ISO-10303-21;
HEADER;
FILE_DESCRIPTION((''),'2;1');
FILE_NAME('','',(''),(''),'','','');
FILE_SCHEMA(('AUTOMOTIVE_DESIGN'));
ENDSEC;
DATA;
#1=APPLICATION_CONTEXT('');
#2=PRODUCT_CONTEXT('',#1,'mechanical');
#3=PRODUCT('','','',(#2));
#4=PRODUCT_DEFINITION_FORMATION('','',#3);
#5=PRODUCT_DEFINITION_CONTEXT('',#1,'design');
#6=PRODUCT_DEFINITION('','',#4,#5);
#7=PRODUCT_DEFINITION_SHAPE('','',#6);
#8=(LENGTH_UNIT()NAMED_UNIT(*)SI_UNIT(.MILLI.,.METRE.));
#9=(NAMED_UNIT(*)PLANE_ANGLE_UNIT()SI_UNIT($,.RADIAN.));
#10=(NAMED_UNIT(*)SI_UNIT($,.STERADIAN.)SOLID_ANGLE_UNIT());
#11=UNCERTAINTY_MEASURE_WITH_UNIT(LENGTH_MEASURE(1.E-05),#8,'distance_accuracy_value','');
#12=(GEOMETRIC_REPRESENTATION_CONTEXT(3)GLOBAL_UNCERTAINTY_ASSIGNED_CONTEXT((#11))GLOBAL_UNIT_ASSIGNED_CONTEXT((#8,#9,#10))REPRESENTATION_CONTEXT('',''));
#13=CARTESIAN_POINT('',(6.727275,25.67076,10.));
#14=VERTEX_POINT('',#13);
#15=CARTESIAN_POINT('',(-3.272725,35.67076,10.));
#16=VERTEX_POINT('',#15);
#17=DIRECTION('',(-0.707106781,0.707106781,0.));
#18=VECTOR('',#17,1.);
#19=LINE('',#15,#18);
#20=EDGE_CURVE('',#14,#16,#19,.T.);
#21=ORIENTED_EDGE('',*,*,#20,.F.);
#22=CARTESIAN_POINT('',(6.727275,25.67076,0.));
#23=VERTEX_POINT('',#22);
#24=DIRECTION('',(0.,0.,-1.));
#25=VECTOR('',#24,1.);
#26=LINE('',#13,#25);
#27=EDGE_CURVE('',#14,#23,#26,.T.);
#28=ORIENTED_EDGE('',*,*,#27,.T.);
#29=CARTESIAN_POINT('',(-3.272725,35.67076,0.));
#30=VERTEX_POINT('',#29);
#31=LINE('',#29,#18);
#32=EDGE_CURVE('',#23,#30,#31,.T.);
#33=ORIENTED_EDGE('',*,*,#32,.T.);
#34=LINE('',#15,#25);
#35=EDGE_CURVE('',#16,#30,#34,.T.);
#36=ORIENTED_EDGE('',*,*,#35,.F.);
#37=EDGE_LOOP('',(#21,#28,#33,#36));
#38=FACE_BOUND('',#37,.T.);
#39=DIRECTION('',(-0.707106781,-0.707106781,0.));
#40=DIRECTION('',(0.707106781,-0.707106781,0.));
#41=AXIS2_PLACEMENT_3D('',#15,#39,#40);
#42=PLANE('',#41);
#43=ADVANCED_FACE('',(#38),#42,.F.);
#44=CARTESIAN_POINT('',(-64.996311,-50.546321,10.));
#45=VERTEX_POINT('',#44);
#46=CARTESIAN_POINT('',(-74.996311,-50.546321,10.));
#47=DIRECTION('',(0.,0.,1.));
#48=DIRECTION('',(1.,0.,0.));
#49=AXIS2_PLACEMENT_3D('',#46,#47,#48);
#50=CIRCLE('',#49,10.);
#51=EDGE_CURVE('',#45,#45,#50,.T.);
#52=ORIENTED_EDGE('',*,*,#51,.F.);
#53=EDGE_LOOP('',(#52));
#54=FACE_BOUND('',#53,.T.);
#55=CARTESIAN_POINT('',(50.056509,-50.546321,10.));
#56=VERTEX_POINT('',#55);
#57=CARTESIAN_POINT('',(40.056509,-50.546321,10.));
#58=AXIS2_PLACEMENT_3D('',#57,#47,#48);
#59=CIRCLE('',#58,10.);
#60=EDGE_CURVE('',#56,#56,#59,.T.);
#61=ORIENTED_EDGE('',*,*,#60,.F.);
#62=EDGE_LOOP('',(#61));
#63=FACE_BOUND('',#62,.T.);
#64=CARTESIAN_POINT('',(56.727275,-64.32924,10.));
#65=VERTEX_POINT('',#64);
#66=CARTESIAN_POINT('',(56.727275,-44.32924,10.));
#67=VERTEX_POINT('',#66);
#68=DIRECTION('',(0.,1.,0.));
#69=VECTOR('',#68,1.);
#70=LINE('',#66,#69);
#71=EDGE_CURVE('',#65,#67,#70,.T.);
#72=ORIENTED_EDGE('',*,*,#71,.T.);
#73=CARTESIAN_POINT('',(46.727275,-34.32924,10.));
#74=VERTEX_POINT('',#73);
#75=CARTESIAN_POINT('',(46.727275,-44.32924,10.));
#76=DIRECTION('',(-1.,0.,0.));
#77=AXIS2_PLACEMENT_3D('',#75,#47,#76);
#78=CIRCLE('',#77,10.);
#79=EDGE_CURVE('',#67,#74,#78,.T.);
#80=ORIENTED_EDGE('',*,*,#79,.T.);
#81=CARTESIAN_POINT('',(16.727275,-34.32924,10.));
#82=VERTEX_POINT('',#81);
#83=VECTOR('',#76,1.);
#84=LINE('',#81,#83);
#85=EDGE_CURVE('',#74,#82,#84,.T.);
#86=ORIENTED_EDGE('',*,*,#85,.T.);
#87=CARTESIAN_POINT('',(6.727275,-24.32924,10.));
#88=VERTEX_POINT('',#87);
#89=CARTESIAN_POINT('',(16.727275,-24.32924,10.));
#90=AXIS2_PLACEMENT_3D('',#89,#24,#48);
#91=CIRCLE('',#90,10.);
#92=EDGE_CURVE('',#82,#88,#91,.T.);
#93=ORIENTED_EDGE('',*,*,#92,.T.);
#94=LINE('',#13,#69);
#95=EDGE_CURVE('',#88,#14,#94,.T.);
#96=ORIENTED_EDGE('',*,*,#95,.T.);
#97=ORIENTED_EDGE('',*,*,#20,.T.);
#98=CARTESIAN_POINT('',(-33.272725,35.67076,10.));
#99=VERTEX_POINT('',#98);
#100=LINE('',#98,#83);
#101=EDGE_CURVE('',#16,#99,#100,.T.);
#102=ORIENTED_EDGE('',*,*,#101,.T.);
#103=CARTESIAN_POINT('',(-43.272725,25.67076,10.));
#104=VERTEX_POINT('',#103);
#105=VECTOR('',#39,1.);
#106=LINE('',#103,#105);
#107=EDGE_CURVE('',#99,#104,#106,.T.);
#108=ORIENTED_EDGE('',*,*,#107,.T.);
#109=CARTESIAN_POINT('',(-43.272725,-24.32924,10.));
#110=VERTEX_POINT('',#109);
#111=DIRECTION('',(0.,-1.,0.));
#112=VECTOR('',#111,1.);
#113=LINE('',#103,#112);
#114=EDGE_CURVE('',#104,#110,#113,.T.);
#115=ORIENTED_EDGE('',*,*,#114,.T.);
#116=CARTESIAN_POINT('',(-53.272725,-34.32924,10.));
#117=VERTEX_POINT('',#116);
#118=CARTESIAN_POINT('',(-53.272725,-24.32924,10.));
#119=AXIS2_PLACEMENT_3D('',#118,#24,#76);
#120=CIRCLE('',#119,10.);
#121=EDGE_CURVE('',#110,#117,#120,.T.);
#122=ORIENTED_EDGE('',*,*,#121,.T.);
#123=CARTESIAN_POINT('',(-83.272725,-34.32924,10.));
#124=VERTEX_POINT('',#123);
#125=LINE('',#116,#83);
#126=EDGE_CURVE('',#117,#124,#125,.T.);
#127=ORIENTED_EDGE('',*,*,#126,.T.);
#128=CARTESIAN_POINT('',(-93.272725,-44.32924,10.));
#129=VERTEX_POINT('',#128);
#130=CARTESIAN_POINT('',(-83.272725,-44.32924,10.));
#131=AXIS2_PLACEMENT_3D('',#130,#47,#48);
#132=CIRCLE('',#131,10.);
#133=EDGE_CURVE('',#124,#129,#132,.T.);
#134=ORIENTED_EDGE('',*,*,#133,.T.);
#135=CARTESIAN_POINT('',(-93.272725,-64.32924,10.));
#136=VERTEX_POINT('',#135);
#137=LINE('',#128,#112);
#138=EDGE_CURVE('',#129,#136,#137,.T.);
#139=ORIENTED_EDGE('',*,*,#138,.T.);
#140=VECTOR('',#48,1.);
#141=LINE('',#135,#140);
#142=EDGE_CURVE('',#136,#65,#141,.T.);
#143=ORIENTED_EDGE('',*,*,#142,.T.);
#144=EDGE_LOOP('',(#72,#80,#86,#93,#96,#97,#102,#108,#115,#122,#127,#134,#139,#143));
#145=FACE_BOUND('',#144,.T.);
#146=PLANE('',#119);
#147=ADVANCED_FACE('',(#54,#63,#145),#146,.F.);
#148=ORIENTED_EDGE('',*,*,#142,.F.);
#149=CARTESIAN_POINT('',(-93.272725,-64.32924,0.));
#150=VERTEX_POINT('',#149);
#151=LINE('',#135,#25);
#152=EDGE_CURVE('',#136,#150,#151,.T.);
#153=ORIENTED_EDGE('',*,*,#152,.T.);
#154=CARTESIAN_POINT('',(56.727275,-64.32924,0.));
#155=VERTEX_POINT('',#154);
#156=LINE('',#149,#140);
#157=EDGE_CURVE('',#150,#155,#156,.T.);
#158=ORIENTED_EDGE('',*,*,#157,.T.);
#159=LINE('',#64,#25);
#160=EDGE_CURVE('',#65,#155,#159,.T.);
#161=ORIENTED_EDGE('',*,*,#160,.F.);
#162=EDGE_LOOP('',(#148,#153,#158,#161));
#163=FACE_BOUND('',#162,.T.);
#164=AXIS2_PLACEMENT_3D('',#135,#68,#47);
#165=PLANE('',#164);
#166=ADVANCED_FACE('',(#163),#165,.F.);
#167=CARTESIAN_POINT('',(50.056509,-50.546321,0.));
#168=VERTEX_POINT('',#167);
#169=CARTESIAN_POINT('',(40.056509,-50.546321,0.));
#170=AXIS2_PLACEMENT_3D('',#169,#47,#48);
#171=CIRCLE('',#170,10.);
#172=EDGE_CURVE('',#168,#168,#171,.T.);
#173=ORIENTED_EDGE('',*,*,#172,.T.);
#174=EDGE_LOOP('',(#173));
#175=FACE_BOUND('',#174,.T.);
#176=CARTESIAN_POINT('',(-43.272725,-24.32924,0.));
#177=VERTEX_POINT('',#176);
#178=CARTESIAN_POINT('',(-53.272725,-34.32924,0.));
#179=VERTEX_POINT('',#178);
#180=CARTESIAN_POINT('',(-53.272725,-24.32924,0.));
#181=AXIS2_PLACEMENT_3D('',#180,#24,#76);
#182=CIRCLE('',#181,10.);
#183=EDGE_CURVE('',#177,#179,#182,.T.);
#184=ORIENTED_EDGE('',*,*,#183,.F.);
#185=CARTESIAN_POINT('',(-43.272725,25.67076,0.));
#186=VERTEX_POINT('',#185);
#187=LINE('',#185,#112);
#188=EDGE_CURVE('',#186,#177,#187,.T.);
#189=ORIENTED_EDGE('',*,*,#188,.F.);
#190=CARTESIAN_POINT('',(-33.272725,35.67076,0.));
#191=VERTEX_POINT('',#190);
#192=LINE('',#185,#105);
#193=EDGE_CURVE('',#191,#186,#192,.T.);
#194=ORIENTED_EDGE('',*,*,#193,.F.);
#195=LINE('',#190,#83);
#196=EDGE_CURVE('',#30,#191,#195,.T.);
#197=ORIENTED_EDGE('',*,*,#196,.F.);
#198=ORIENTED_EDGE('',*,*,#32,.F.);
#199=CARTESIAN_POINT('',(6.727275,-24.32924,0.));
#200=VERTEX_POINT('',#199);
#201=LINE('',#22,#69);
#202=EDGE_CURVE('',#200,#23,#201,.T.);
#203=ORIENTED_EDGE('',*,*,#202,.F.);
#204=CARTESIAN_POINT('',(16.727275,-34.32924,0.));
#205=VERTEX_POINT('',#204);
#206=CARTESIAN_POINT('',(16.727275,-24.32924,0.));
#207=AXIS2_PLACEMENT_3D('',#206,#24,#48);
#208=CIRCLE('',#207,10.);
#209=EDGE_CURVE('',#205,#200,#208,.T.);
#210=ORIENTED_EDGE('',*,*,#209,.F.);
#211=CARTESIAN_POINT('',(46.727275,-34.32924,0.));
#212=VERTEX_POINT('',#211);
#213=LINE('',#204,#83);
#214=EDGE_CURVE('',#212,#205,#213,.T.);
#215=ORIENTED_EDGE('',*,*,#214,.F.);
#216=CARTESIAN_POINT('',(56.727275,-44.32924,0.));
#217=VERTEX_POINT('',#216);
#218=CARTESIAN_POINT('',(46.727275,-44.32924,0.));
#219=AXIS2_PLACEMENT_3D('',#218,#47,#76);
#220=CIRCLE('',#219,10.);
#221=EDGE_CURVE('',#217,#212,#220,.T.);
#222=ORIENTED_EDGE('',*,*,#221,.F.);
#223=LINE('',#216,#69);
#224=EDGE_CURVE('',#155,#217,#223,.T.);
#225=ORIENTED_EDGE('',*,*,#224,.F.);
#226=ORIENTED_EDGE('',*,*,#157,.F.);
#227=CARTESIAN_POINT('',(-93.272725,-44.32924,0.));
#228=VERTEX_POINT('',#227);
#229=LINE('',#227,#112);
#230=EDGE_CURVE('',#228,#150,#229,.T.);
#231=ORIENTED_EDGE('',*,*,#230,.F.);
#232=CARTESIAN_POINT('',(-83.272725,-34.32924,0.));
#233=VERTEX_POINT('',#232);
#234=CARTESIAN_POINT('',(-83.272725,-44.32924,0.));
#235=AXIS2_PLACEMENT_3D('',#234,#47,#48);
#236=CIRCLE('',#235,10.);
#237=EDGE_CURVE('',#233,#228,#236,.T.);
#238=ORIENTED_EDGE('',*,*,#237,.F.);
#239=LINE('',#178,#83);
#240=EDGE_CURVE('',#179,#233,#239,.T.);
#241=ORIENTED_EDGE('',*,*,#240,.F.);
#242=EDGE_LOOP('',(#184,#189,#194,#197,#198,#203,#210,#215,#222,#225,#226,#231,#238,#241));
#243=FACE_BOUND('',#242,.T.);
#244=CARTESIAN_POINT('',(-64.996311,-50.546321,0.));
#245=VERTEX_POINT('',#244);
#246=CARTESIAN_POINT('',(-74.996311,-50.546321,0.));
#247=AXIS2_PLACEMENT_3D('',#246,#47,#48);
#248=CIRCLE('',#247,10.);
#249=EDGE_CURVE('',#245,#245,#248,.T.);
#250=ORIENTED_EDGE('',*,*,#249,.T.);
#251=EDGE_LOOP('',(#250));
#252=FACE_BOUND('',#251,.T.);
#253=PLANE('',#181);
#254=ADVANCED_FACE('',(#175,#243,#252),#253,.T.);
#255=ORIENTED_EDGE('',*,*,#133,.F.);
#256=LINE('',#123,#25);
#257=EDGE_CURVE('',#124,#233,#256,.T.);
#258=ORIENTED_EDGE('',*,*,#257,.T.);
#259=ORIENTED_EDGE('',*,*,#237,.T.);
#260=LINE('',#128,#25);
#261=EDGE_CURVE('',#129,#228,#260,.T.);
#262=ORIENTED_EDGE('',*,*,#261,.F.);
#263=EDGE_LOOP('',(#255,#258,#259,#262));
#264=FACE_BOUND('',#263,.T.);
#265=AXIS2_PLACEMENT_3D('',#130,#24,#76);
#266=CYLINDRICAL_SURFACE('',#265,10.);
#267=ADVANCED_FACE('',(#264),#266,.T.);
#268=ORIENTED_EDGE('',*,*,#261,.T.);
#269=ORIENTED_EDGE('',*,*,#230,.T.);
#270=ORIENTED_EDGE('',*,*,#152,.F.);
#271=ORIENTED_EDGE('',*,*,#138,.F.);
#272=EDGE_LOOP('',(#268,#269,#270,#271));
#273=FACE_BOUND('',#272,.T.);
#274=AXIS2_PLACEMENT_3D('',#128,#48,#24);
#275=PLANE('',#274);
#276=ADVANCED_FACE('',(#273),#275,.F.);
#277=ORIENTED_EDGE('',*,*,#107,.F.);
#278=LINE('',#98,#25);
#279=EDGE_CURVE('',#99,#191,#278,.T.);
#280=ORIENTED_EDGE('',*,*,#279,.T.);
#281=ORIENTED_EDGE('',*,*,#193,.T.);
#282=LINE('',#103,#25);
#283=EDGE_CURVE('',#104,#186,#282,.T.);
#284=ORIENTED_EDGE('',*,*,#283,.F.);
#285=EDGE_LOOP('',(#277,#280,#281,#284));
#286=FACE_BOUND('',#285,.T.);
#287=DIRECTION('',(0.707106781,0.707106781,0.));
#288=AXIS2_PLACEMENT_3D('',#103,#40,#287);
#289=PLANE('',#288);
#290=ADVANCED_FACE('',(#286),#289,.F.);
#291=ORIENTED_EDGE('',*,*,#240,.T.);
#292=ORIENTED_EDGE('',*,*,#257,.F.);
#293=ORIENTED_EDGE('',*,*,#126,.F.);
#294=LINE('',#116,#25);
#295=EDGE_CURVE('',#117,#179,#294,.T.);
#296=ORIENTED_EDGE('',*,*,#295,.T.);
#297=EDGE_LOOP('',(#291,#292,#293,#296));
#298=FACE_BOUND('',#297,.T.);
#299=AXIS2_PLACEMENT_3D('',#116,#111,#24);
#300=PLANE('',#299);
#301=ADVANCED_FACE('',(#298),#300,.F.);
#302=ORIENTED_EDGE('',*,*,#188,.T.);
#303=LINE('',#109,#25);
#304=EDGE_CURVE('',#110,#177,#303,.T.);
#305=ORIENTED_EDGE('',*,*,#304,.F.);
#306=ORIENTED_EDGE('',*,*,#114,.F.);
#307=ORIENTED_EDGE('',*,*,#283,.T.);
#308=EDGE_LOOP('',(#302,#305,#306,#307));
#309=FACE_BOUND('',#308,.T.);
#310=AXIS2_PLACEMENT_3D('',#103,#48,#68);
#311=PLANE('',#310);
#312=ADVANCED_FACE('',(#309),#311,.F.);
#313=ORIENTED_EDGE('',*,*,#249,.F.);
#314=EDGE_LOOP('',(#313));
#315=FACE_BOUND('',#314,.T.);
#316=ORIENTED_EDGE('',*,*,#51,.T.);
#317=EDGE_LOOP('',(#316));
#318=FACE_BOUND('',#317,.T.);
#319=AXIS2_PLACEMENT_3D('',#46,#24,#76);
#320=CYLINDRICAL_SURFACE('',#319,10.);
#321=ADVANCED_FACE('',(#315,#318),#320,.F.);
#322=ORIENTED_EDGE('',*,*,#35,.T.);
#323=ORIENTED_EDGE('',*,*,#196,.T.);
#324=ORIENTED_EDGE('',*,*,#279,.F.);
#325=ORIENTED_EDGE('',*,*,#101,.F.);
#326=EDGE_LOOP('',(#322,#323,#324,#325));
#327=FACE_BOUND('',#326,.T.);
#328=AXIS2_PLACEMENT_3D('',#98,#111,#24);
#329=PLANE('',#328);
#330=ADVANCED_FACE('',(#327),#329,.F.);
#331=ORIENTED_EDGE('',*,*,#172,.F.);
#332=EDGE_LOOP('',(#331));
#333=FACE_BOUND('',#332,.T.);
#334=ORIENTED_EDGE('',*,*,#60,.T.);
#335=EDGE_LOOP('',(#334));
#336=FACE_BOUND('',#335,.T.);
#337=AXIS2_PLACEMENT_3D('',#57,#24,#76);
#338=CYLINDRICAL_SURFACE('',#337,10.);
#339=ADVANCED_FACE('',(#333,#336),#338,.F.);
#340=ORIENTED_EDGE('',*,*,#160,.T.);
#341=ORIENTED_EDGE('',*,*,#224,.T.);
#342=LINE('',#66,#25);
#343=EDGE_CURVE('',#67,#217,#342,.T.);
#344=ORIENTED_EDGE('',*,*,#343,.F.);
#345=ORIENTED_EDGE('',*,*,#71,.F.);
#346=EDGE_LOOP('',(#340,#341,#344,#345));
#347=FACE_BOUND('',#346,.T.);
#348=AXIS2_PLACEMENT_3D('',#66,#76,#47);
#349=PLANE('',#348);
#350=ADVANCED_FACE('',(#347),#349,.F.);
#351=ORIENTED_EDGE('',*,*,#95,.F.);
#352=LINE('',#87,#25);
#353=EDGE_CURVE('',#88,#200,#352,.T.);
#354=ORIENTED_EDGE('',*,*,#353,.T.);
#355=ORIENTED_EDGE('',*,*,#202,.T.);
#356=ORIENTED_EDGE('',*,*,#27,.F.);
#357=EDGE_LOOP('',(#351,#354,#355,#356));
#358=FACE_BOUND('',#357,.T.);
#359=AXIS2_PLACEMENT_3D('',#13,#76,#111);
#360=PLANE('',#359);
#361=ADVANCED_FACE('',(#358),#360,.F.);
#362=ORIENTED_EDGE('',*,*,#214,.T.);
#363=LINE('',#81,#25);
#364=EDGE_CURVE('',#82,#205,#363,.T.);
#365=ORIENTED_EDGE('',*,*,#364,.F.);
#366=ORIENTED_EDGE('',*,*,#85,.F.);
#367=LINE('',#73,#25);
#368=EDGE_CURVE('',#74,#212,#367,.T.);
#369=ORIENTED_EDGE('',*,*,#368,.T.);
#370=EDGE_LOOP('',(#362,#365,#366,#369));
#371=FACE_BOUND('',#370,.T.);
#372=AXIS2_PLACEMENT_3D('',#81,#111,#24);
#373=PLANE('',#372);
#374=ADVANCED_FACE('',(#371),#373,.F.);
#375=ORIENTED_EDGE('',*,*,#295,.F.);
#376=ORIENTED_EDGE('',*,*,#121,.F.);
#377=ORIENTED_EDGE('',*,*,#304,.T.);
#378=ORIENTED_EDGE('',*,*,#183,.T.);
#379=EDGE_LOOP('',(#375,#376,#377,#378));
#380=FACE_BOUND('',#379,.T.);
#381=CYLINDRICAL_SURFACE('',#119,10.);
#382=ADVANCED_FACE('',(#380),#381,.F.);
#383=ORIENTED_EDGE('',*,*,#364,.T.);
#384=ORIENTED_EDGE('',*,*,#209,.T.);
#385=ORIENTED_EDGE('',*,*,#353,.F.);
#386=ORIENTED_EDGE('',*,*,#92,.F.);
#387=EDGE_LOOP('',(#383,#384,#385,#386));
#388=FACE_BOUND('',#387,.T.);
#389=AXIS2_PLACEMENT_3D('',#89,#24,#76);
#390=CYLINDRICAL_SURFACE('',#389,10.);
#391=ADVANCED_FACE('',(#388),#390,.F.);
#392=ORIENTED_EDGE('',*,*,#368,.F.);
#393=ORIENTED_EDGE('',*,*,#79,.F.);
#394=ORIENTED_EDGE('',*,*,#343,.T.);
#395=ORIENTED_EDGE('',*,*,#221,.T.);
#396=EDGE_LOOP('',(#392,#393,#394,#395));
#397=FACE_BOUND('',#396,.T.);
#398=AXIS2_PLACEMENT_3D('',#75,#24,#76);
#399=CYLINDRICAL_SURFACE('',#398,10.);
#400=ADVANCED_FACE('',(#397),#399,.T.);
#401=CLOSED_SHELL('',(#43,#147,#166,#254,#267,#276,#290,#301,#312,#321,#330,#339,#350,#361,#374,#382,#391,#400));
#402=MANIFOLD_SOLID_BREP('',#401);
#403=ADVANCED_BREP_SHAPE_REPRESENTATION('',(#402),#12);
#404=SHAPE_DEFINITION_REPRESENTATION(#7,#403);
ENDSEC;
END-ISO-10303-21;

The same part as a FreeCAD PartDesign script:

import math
import FreeCAD as App
import Part
import Sketcher

doc = App.newDocument("Part")
body = doc.addObject("PartDesign::Body", "Body")

# Sketch on XY plane
sketch1 = body.newObject("Sketcher::SketchObject", "Sketch")
sketch1.AttachmentSupport = (doc.getObject("XY_Plane"), [""])
sketch1.MapMode = "FlatFace"
sketch1.addGeometry(Part.LineSegment(App.Vector(-3.272725, 35.67076, 0), App.Vector(-33.272725, 35.67076, 0)), False)
sketch1.addGeometry(Part.LineSegment(App.Vector(-33.272725, 35.67076, 0), App.Vector(-43.272725, 25.67076, 0)), False)
sketch1.addGeometry(Part.LineSegment(App.Vector(-43.272725, 25.67076, 0), App.Vector(-43.272725, -24.32924, 0)), False)
sketch1.addGeometry(Part.ArcOfCircle(Part.Circle(App.Vector(-53.272725, -24.32924, 0), App.Vector(0, 0, 1), 10), math.radians(-90), math.radians(0)), False)
sketch1.addGeometry(Part.LineSegment(App.Vector(-53.272725, -34.32924, 0), App.Vector(-83.272725, -34.32924, 0)), False)
sketch1.addGeometry(Part.ArcOfCircle(Part.Circle(App.Vector(-83.272725, -44.32924, 0), App.Vector(0, 0, 1), 10), math.radians(90), math.radians(180)), False)
sketch1.addGeometry(Part.LineSegment(App.Vector(-93.272725, -44.32924, 0), App.Vector(-93.272725, -64.32924, 0)), False)
sketch1.addGeometry(Part.LineSegment(App.Vector(-93.272725, -64.32924, 0), App.Vector(56.727275, -64.32924, 0)), False)
sketch1.addGeometry(Part.LineSegment(App.Vector(56.727275, -64.32924, 0), App.Vector(56.727275, -44.32924, 0)), False)
sketch1.addGeometry(Part.ArcOfCircle(Part.Circle(App.Vector(46.727275, -44.32924, 0), App.Vector(0, 0, 1), 10), math.radians(0), math.radians(90)), False)
sketch1.addGeometry(Part.LineSegment(App.Vector(46.727275, -34.32924, 0), App.Vector(16.727275, -34.32924, 0)), False)
sketch1.addGeometry(Part.ArcOfCircle(Part.Circle(App.Vector(16.727275, -24.32924, 0), App.Vector(0, 0, 1), 10), math.radians(180), math.radians(270)), False)
sketch1.addGeometry(Part.LineSegment(App.Vector(6.727275, -24.32924, 0), App.Vector(6.727275, 25.67076, 0)), False)
sketch1.addGeometry(Part.LineSegment(App.Vector(6.727275, 25.67076, 0), App.Vector(-3.272725, 35.67076, 0)), False)
sketch1.addGeometry(Part.Circle(App.Vector(40.056509, -50.546321, 0), App.Vector(0, 0, 1), 10), False)
sketch1.addGeometry(Part.Circle(App.Vector(-74.996311, -50.546321, 0), App.Vector(0, 0, 1), 10), False)
sketch1.addConstraint(Sketcher.Constraint("Coincident", 0, 2, 1, 1))
sketch1.addConstraint(Sketcher.Constraint("Coincident", 1, 2, 2, 1))
sketch1.addConstraint(Sketcher.Constraint("Tangent", 2, 2, 3, 2))
sketch1.addConstraint(Sketcher.Constraint("Tangent", 3, 1, 4, 1))
sketch1.addConstraint(Sketcher.Constraint("Tangent", 4, 2, 5, 1))
sketch1.addConstraint(Sketcher.Constraint("Tangent", 5, 2, 6, 1))
sketch1.addConstraint(Sketcher.Constraint("Coincident", 6, 2, 7, 1))
sketch1.addConstraint(Sketcher.Constraint("Coincident", 7, 2, 8, 1))
sketch1.addConstraint(Sketcher.Constraint("Tangent", 8, 2, 9, 1))
sketch1.addConstraint(Sketcher.Constraint("Tangent", 9, 2, 10, 1))
sketch1.addConstraint(Sketcher.Constraint("Tangent", 10, 2, 11, 2))
sketch1.addConstraint(Sketcher.Constraint("Tangent", 11, 1, 12, 1))
sketch1.addConstraint(Sketcher.Constraint("Coincident", 12, 2, 13, 1))
sketch1.addConstraint(Sketcher.Constraint("Coincident", 13, 2, 0, 1))
sketch1.addConstraint(Sketcher.Constraint("Horizontal", 0))
sketch1.addConstraint(Sketcher.Constraint("Vertical", 2))
sketch1.addConstraint(Sketcher.Constraint("Horizontal", 4))
sketch1.addConstraint(Sketcher.Constraint("Vertical", 6))
sketch1.addConstraint(Sketcher.Constraint("Horizontal", 7))
sketch1.addConstraint(Sketcher.Constraint("Vertical", 8))
sketch1.addConstraint(Sketcher.Constraint("Horizontal", 10))
sketch1.addConstraint(Sketcher.Constraint("Vertical", 12))
sketch1.addConstraint(Sketcher.Constraint("Equal", 3, 5))
sketch1.addConstraint(Sketcher.Constraint("Equal", 5, 9))
sketch1.addConstraint(Sketcher.Constraint("Equal", 9, 11))
sketch1.addConstraint(Sketcher.Constraint("Equal", 11, 14))
sketch1.addConstraint(Sketcher.Constraint("Equal", 14, 15))
sketch1.addConstraint(Sketcher.Constraint("Perpendicular", 1, 13))
sketch1.addConstraint(Sketcher.Constraint("Horizontal", 5, 3, 9, 3))
sketch1.addConstraint(Sketcher.Constraint("Horizontal", 14, 3, 15, 3))
sketch1.addConstraint(Sketcher.Constraint("Horizontal", 1, 2, 12, 2))
sketch1.addConstraint(Sketcher.Constraint("Equal", 0, 4))
sketch1.addConstraint(Sketcher.Constraint("Equal", 4, 10))
sketch1.addConstraint(Sketcher.Constraint("Equal", 1, 13))
sketch1.addConstraint(Sketcher.Constraint("Diameter", 14, 20.0))
sketch1.addConstraint(Sketcher.Constraint("DistanceX", 0, 2, 0, 1, 30.0))
sketch1.addConstraint(Sketcher.Constraint("DistanceX", 7, 1, 7, 2, 150.0))
sketch1.addConstraint(Sketcher.Constraint("DistanceY", 2, 2, 2, 1, 50.0))
sketch1.addConstraint(Sketcher.Constraint("DistanceY", 6, 2, 6, 1, 20.0))
sketch1.addConstraint(Sketcher.Constraint("DistanceY", 3, 3, -1, 1, 24.32924))
sketch1.addConstraint(Sketcher.Constraint("DistanceX", -1, 1, 14, 3, 40.056509))
sketch1.addConstraint(Sketcher.Constraint("DistanceY", 14, 3, -1, 1, 50.546321))
sketch1.addConstraint(Sketcher.Constraint("DistanceX", 15, 3, -1, 1, 74.996311))
sketch1.addConstraint(Sketcher.Constraint("DistanceX", 3, 3, -1, 1, 53.272725))
pad1 = body.newObject("PartDesign::Pad", "Pad")
pad1.Profile = sketch1
pad1.Length = 10

doc.recompute()
